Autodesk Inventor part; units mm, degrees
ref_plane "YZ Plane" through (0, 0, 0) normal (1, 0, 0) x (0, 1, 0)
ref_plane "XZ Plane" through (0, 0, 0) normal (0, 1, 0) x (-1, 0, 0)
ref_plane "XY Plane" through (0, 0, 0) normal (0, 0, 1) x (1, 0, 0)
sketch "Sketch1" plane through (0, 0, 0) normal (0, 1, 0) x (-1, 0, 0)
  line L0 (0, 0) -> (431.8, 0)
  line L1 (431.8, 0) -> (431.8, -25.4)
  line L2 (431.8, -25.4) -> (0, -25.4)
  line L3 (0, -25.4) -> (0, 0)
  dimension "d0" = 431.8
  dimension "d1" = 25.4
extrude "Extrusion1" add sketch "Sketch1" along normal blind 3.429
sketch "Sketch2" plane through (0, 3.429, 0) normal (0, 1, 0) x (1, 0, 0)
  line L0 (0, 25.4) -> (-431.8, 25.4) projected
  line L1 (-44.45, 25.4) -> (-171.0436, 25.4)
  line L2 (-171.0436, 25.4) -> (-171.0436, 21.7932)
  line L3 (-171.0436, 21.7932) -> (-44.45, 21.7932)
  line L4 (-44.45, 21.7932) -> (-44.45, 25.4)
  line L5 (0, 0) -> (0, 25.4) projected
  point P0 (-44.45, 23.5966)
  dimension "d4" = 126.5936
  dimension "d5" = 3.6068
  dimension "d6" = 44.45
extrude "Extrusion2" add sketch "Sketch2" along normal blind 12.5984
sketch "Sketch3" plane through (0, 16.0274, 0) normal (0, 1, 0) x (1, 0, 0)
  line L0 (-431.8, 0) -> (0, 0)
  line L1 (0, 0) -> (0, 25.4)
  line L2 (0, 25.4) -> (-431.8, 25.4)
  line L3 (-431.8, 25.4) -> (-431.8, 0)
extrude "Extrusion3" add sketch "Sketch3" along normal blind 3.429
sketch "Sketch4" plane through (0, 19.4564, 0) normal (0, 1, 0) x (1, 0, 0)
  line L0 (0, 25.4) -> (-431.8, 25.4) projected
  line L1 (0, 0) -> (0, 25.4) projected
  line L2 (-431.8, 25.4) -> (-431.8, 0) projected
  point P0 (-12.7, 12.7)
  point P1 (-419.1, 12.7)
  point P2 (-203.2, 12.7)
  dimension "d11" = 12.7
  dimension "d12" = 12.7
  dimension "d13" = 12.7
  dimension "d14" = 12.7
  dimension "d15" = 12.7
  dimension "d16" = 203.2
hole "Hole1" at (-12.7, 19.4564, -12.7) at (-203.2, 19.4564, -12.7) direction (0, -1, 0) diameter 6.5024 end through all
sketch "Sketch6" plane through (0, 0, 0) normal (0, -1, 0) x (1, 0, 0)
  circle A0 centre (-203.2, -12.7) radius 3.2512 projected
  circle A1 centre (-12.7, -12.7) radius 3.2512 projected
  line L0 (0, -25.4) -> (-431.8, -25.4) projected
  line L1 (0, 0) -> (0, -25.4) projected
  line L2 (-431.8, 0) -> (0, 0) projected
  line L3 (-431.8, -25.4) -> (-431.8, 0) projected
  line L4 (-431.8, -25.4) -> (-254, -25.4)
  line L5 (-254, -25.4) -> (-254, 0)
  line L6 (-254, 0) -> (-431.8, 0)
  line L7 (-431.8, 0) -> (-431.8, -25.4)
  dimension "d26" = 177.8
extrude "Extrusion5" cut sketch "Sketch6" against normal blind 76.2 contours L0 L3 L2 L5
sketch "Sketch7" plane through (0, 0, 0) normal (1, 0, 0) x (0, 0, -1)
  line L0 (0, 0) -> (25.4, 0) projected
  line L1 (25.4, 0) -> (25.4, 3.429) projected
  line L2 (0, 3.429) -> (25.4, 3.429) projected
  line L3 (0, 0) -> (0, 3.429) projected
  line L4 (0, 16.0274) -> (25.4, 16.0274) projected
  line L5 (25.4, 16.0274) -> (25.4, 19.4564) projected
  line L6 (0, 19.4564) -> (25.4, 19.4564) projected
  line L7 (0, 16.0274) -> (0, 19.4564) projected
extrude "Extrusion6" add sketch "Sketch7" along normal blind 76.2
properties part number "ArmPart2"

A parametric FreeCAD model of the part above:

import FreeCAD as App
import Part
import Sketcher
from FreeCAD import Vector
Q = App.Units.Quantity


def add_polygon(sketch, points):
    """Adds a closed chain of lines whose ends are joined by coincident constraints."""
    first, n = sketch.GeometryCount, len(points)
    for a, b in zip(points, points[1:] + points[:1]):
        sketch.addGeometry(Part.LineSegment(App.Vector(*a, 0), App.Vector(*b, 0)), False)
    for i in range(n):
        sketch.addConstraint(Sketcher.Constraint("Coincident", first + i, 2, first + (i + 1) % n, 1))

doc = App.newDocument("Part")
body = doc.addObject("PartDesign::Body", "Body")

# Sketch on XZ plane
sketch1 = body.newObject("Sketcher::SketchObject", "Sketch")
sketch1.AttachmentSupport = (doc.getObject("XZ_Plane"), [""])
sketch1.MapMode = "FlatFace"
add_polygon(sketch1, [(-431.8, 0), (0, 0), (0, -25.4), (-431.8, -25.4)])  # lines 0-3
sketch1.addConstraint([
    Sketcher.Constraint("Horizontal", 0),
    Sketcher.Constraint("Vertical", 1),
    Sketcher.Constraint("Horizontal", 2),
    Sketcher.Constraint("Vertical", 3),
    Sketcher.Constraint("Coincident", 0, 2, -1, 1),
    Sketcher.Constraint("DistanceX", 0, 1, 0, 2, Q("17 in")),
    Sketcher.Constraint("DistanceY", 1, 2, 1, 1, Q("1 in")),
])
pad1 = body.newObject("PartDesign::Pad", "Pad")
pad1.Profile = sketch1
pad1.Length = Q("0.135 in")
pad1.Reversed = True

# Sketch on XZ plane
sketch2 = body.newObject("Sketcher::SketchObject", "Sketch001")
sketch2.AttachmentSupport = (doc.getObject("XZ_Plane"), [""])
sketch2.MapMode = "FlatFace"
sketch2.AttachmentOffset = App.Placement(Vector(0, 0, -0.135 * 25.4), App.Rotation())
add_polygon(sketch2, [(-44.45, -21.7932), (-44.45, -25.4), (-171.0436, -25.4), (-171.0436, -21.7932)])  # lines 0-3
sketch2.addConstraint([
    Sketcher.Constraint("Vertical", 0),
    Sketcher.Constraint("Horizontal", 1),
    Sketcher.Constraint("Vertical", 2),
    Sketcher.Constraint("Horizontal", 3),
    Sketcher.Constraint("DistanceX", 1, 2, 1, 1, Q("4.984 in")),
    Sketcher.Constraint("DistanceY", 0, 2, 0, 1, Q("0.142 in")),
    Sketcher.Constraint("DistanceX", 0, 2, -1, 1, Q("1.75 in")),
    Sketcher.Constraint("DistanceY", 0, 2, -1, 1, Q("1 in")),
])
pad2 = body.newObject("PartDesign::Pad", "Pad001")
pad2.Profile = sketch2
pad2.Length = Q("0.496 in")
pad2.Reversed = True

# Sketch on XZ plane
sketch3 = body.newObject("Sketcher::SketchObject", "Sketch002")
sketch3.AttachmentSupport = (doc.getObject("XZ_Plane"), [""])
sketch3.MapMode = "FlatFace"
sketch3.AttachmentOffset = App.Placement(Vector(0, 0, -0.631 * 25.4), App.Rotation())
add_polygon(sketch3, [(-431.8, -25.4), (-431.8, 0), (0, 0), (0, -25.4)])  # lines 0-3
sketch3.addConstraint([
    Sketcher.Constraint("Vertical", 0),
    Sketcher.Constraint("Horizontal", 1),
    Sketcher.Constraint("Vertical", 2),
    Sketcher.Constraint("Horizontal", 3),
    Sketcher.Constraint("Coincident", 1, 2, -1, 1),
    Sketcher.Constraint("DistanceX", 1, 1, 1, 2, Q("17 in")),
    Sketcher.Constraint("DistanceY", 0, 1, 0, 2, Q("1 in")),
])
pad3 = body.newObject("PartDesign::Pad", "Pad002")
pad3.Profile = sketch3
pad3.Length = Q("0.135 in")
pad3.Reversed = True

# Sketch on XZ plane
sketch4 = body.newObject("Sketcher::SketchObject", "Sketch003")
sketch4.AttachmentSupport = (doc.getObject("XZ_Plane"), [""])
sketch4.MapMode = "FlatFace"
sketch4.AttachmentOffset = App.Placement(Vector(0, 0, -0.766 * 25.4), App.Rotation())
sketch4.addGeometry([
    Part.Circle(Vector(-12.7, -12.7, 0), Vector(0, 0, 1), 3.2512),
    Part.Circle(Vector(-203.2, -12.7, 0), Vector(0, 0, 1), 3.2512),
], False)
sketch4.addConstraint([
    Sketcher.Constraint("Equal", 0, 1),
    Sketcher.Constraint("Horizontal", 0, 3, 1, 3),
    Sketcher.Constraint("Diameter", 0, Q("0.256 in")),
    Sketcher.Constraint("DistanceX", 1, 3, -1, 1, Q("8 in")),
    Sketcher.Constraint("DistanceX", 0, 3, -1, 1, Q("0.5 in")),
    Sketcher.Constraint("DistanceY", 0, 3, -1, 1, Q("0.5 in")),
])
doc.recompute()
hole = body.newObject("PartDesign::Hole", "Hole")
hole.Profile = sketch4
hole.ThreadType = "None"
hole.Diameter = Q("0.256 in")
hole.DepthType = "ThroughAll"
hole.Reversed = True

# Sketch on XZ plane
sketch5 = body.newObject("Sketcher::SketchObject", "Sketch004")
sketch5.AttachmentSupport = (doc.getObject("XZ_Plane"), [""])
sketch5.MapMode = "FlatFace"
add_polygon(sketch5, [(-431.8, -25.4), (-254, -25.4), (-254, 0), (-431.8, 0)])  # lines 0-3
sketch5.addConstraint([
    Sketcher.Constraint("Horizontal", 0),
    Sketcher.Constraint("Vertical", 1),
    Sketcher.Constraint("Horizontal", 2),
    Sketcher.Constraint("Vertical", 3),
    Sketcher.Constraint("PointOnObject", 1, 2, -1),
    Sketcher.Constraint("DistanceX", 0, 1, 0, 2, Q("7 in")),
    Sketcher.Constraint("DistanceY", 1, 1, 1, 2, Q("1 in")),
    Sketcher.Constraint("DistanceX", 0, 2, -1, 1, Q("10 in")),
])
pocket1 = body.newObject("PartDesign::Pocket", "Pocket")
pocket1.Profile = sketch5
pocket1.Length = Q("3 in")

# Sketch on YZ plane
sketch6 = body.newObject("Sketcher::SketchObject", "Sketch005")
sketch6.AttachmentSupport = (doc.getObject("YZ_Plane"), [""])
sketch6.MapMode = "FlatFace"
add_polygon(sketch6, [(3.429, 0), (0, 0), (0, -25.4), (3.429, -25.4)])  # lines 0-3
add_polygon(sketch6, [(19.4564, 0), (16.0274, 0), (16.0274, -25.4), (19.4564, -25.4)])  # lines 4-7
sketch6.addConstraint([
    Sketcher.Constraint("Horizontal", 0),
    Sketcher.Constraint("Vertical", 1),
    Sketcher.Constraint("Horizontal", 2),
    Sketcher.Constraint("Vertical", 3),
    Sketcher.Constraint("Horizontal", 4),
    Sketcher.Constraint("Vertical", 5),
    Sketcher.Constraint("Horizontal", 6),
    Sketcher.Constraint("Vertical", 7),
    Sketcher.Constraint("Coincident", 0, 2, -1, 1),
    Sketcher.Constraint("PointOnObject", 4, 2, -1),
    Sketcher.Constraint("Horizontal", 2, 2, 5, 2),
    Sketcher.Constraint("Equal", 2, 4),
    Sketcher.Constraint("DistanceY", 1, 2, 1, 1, Q("1 in")),
    Sketcher.Constraint("DistanceX", 0, 2, 0, 1, Q("0.135 in")),
    Sketcher.Constraint("DistanceX", -1, 1, 4, 2, Q("0.631 in")),
])
pad4 = body.newObject("PartDesign::Pad", "Pad003")
pad4.Profile = sketch6
pad4.Length = Q("3 in")

doc.recompute()
